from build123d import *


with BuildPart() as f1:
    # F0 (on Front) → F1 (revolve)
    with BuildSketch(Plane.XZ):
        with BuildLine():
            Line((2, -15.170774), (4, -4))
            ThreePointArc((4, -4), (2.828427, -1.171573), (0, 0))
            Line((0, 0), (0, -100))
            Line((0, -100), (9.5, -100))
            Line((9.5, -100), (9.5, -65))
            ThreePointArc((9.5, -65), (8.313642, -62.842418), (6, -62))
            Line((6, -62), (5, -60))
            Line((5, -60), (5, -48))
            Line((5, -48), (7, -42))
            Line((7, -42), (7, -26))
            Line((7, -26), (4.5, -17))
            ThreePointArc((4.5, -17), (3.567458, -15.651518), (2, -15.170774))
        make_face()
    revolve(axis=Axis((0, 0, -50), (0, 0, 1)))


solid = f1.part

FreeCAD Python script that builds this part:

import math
import FreeCAD as App
import Part
import Sketcher

doc = App.newDocument("Part")
body = doc.addObject("PartDesign::Body", "Body")

# Sketch on XZ plane
sketch1 = body.newObject("Sketcher::SketchObject", "Sketch")
sketch1.AttachmentSupport = (doc.getObject("XZ_Plane"), [""])
sketch1.MapMode = "FlatFace"
sketch1.addGeometry(Part.LineSegment(App.Vector(2, -15.170774, 0), App.Vector(4, -4, 0)), False)
sketch1.addGeometry(Part.ArcOfCircle(Part.Circle(App.Vector(0, -4, 0), App.Vector(0, 0, 1), 4), math.radians(0.000006), math.radians(89.999994)), False)
sketch1.addGeometry(Part.LineSegment(App.Vector(0, 0, 0), App.Vector(0, -100, 0)), False)
sketch1.addGeometry(Part.LineSegment(App.Vector(0, -100, 0), App.Vector(9.5, -100, 0)), False)
sketch1.addGeometry(Part.LineSegment(App.Vector(9.5, -100, 0), App.Vector(9.5, -65, 0)), False)
sketch1.addGeometry(Part.ArcOfCircle(Part.Circle(App.Vector(6.035873, -65.499815, 0), App.Vector(0, 0, 1), 3.499999), math.radians(8.210159), math.radians(90.587252)), False)
sketch1.addGeometry(Part.LineSegment(App.Vector(6, -62, 0), App.Vector(5, -60, 0)), False)
sketch1.addGeometry(Part.LineSegment(App.Vector(5, -60, 0), App.Vector(5, -48, 0)), False)
sketch1.addGeometry(Part.LineSegment(App.Vector(5, -48, 0), App.Vector(7, -42, 0)), False)
sketch1.addGeometry(Part.LineSegment(App.Vector(7, -42, 0), App.Vector(7, -26, 0)), False)
sketch1.addGeometry(Part.LineSegment(App.Vector(7, -26, 0), App.Vector(4.5, -17, 0)), False)
sketch1.addGeometry(Part.ArcOfCircle(Part.Circle(App.Vector(2.091205, -17.669111, 0), App.Vector(0, 0, 1), 2.500001), math.radians(15.524131), math.radians(92.090717)), False)
sketch1.addConstraint(Sketcher.Constraint("Coincident", 0, 2, 1, 1))
sketch1.addConstraint(Sketcher.Constraint("Coincident", 1, 2, 2, 1))
sketch1.addConstraint(Sketcher.Constraint("Coincident", 2, 2, 3, 1))
sketch1.addConstraint(Sketcher.Constraint("Coincident", 3, 2, 4, 1))
sketch1.addConstraint(Sketcher.Constraint("Coincident", 4, 2, 5, 1))
sketch1.addConstraint(Sketcher.Constraint("Coincident", 5, 2, 6, 1))
sketch1.addConstraint(Sketcher.Constraint("Coincident", 6, 2, 7, 1))
sketch1.addConstraint(Sketcher.Constraint("Coincident", 7, 2, 8, 1))
sketch1.addConstraint(Sketcher.Constraint("Coincident", 8, 2, 9, 1))
sketch1.addConstraint(Sketcher.Constraint("Coincident", 9, 2, 10, 1))
sketch1.addConstraint(Sketcher.Constraint("Tangent", 10, 2, 11, 1))
sketch1.addConstraint(Sketcher.Constraint("Coincident", 11, 2, 0, 1))
sketch1.addConstraint(Sketcher.Constraint("Vertical", 2))
sketch1.addConstraint(Sketcher.Constraint("Horizontal", 3))
sketch1.addConstraint(Sketcher.Constraint("Vertical", 4))
sketch1.addConstraint(Sketcher.Constraint("Vertical", 7))
sketch1.addConstraint(Sketcher.Constraint("Vertical", 9))
sketch1.addConstraint(Sketcher.Constraint("Coincident", 1, 2, -1, 1))
sketch1.addConstraint(Sketcher.Constraint("PointOnObject", 1, 3, -2))
sketch1.addConstraint(Sketcher.Constraint("Horizontal", 1, 3, 0, 2))
sketch1.addConstraint(Sketcher.Constraint("Radius", 1, 4.0))
sketch1.addConstraint(Sketcher.Constraint("Radius", 5, 3.499999))
sketch1.addConstraint(Sketcher.Constraint("Radius", 11, 2.500001))
sketch1.addConstraint(Sketcher.Constraint("DistanceY", 2, 2, 2, 1, 100.0))
sketch1.addConstraint(Sketcher.Constraint("DistanceY", 4, 1, 4, 2, 35.0))
sketch1.addConstraint(Sketcher.Constraint("DistanceY", 7, 1, 7, 2, 12.0))
sketch1.addConstraint(Sketcher.Constraint("DistanceY", 9, 1, 9, 2, 16.0))
sketch1.addConstraint(Sketcher.Constraint("DistanceX", 3, 1, 3, 2, 9.5))
sketch1.addConstraint(Sketcher.Constraint("DistanceX", -1, 1, 5, 2, 6.0))
sketch1.addConstraint(Sketcher.Constraint("DistanceY", 5, 2, -1, 1, 62.0))
sketch1.addConstraint(Sketcher.Constraint("DistanceX", -1, 1, 6, 2, 5.0))
sketch1.addConstraint(Sketcher.Constraint("DistanceY", 6, 2, -1, 1, 60.0))
sketch1.addConstraint(Sketcher.Constraint("DistanceX", -1, 1, 8, 2, 7.0))
sketch1.addConstraint(Sketcher.Constraint("DistanceY", 8, 2, -1, 1, 42.0))
sketch1.addConstraint(Sketcher.Constraint("DistanceY", 10, 2, -1, 1, 17.0))
sketch1.addConstraint(Sketcher.Constraint("DistanceX", -1, 1, 11, 2, 2.0))
sketch1.addConstraint(Sketcher.Constraint("DistanceX", -1, 1, 10, 2, 4.5))
revolution = body.newObject("PartDesign::Revolution", "Revolution")
revolution.Profile = sketch1
revolution.ReferenceAxis = (sketch1, ["V_Axis"])
revolution.Angle = 360

doc.recompute()
